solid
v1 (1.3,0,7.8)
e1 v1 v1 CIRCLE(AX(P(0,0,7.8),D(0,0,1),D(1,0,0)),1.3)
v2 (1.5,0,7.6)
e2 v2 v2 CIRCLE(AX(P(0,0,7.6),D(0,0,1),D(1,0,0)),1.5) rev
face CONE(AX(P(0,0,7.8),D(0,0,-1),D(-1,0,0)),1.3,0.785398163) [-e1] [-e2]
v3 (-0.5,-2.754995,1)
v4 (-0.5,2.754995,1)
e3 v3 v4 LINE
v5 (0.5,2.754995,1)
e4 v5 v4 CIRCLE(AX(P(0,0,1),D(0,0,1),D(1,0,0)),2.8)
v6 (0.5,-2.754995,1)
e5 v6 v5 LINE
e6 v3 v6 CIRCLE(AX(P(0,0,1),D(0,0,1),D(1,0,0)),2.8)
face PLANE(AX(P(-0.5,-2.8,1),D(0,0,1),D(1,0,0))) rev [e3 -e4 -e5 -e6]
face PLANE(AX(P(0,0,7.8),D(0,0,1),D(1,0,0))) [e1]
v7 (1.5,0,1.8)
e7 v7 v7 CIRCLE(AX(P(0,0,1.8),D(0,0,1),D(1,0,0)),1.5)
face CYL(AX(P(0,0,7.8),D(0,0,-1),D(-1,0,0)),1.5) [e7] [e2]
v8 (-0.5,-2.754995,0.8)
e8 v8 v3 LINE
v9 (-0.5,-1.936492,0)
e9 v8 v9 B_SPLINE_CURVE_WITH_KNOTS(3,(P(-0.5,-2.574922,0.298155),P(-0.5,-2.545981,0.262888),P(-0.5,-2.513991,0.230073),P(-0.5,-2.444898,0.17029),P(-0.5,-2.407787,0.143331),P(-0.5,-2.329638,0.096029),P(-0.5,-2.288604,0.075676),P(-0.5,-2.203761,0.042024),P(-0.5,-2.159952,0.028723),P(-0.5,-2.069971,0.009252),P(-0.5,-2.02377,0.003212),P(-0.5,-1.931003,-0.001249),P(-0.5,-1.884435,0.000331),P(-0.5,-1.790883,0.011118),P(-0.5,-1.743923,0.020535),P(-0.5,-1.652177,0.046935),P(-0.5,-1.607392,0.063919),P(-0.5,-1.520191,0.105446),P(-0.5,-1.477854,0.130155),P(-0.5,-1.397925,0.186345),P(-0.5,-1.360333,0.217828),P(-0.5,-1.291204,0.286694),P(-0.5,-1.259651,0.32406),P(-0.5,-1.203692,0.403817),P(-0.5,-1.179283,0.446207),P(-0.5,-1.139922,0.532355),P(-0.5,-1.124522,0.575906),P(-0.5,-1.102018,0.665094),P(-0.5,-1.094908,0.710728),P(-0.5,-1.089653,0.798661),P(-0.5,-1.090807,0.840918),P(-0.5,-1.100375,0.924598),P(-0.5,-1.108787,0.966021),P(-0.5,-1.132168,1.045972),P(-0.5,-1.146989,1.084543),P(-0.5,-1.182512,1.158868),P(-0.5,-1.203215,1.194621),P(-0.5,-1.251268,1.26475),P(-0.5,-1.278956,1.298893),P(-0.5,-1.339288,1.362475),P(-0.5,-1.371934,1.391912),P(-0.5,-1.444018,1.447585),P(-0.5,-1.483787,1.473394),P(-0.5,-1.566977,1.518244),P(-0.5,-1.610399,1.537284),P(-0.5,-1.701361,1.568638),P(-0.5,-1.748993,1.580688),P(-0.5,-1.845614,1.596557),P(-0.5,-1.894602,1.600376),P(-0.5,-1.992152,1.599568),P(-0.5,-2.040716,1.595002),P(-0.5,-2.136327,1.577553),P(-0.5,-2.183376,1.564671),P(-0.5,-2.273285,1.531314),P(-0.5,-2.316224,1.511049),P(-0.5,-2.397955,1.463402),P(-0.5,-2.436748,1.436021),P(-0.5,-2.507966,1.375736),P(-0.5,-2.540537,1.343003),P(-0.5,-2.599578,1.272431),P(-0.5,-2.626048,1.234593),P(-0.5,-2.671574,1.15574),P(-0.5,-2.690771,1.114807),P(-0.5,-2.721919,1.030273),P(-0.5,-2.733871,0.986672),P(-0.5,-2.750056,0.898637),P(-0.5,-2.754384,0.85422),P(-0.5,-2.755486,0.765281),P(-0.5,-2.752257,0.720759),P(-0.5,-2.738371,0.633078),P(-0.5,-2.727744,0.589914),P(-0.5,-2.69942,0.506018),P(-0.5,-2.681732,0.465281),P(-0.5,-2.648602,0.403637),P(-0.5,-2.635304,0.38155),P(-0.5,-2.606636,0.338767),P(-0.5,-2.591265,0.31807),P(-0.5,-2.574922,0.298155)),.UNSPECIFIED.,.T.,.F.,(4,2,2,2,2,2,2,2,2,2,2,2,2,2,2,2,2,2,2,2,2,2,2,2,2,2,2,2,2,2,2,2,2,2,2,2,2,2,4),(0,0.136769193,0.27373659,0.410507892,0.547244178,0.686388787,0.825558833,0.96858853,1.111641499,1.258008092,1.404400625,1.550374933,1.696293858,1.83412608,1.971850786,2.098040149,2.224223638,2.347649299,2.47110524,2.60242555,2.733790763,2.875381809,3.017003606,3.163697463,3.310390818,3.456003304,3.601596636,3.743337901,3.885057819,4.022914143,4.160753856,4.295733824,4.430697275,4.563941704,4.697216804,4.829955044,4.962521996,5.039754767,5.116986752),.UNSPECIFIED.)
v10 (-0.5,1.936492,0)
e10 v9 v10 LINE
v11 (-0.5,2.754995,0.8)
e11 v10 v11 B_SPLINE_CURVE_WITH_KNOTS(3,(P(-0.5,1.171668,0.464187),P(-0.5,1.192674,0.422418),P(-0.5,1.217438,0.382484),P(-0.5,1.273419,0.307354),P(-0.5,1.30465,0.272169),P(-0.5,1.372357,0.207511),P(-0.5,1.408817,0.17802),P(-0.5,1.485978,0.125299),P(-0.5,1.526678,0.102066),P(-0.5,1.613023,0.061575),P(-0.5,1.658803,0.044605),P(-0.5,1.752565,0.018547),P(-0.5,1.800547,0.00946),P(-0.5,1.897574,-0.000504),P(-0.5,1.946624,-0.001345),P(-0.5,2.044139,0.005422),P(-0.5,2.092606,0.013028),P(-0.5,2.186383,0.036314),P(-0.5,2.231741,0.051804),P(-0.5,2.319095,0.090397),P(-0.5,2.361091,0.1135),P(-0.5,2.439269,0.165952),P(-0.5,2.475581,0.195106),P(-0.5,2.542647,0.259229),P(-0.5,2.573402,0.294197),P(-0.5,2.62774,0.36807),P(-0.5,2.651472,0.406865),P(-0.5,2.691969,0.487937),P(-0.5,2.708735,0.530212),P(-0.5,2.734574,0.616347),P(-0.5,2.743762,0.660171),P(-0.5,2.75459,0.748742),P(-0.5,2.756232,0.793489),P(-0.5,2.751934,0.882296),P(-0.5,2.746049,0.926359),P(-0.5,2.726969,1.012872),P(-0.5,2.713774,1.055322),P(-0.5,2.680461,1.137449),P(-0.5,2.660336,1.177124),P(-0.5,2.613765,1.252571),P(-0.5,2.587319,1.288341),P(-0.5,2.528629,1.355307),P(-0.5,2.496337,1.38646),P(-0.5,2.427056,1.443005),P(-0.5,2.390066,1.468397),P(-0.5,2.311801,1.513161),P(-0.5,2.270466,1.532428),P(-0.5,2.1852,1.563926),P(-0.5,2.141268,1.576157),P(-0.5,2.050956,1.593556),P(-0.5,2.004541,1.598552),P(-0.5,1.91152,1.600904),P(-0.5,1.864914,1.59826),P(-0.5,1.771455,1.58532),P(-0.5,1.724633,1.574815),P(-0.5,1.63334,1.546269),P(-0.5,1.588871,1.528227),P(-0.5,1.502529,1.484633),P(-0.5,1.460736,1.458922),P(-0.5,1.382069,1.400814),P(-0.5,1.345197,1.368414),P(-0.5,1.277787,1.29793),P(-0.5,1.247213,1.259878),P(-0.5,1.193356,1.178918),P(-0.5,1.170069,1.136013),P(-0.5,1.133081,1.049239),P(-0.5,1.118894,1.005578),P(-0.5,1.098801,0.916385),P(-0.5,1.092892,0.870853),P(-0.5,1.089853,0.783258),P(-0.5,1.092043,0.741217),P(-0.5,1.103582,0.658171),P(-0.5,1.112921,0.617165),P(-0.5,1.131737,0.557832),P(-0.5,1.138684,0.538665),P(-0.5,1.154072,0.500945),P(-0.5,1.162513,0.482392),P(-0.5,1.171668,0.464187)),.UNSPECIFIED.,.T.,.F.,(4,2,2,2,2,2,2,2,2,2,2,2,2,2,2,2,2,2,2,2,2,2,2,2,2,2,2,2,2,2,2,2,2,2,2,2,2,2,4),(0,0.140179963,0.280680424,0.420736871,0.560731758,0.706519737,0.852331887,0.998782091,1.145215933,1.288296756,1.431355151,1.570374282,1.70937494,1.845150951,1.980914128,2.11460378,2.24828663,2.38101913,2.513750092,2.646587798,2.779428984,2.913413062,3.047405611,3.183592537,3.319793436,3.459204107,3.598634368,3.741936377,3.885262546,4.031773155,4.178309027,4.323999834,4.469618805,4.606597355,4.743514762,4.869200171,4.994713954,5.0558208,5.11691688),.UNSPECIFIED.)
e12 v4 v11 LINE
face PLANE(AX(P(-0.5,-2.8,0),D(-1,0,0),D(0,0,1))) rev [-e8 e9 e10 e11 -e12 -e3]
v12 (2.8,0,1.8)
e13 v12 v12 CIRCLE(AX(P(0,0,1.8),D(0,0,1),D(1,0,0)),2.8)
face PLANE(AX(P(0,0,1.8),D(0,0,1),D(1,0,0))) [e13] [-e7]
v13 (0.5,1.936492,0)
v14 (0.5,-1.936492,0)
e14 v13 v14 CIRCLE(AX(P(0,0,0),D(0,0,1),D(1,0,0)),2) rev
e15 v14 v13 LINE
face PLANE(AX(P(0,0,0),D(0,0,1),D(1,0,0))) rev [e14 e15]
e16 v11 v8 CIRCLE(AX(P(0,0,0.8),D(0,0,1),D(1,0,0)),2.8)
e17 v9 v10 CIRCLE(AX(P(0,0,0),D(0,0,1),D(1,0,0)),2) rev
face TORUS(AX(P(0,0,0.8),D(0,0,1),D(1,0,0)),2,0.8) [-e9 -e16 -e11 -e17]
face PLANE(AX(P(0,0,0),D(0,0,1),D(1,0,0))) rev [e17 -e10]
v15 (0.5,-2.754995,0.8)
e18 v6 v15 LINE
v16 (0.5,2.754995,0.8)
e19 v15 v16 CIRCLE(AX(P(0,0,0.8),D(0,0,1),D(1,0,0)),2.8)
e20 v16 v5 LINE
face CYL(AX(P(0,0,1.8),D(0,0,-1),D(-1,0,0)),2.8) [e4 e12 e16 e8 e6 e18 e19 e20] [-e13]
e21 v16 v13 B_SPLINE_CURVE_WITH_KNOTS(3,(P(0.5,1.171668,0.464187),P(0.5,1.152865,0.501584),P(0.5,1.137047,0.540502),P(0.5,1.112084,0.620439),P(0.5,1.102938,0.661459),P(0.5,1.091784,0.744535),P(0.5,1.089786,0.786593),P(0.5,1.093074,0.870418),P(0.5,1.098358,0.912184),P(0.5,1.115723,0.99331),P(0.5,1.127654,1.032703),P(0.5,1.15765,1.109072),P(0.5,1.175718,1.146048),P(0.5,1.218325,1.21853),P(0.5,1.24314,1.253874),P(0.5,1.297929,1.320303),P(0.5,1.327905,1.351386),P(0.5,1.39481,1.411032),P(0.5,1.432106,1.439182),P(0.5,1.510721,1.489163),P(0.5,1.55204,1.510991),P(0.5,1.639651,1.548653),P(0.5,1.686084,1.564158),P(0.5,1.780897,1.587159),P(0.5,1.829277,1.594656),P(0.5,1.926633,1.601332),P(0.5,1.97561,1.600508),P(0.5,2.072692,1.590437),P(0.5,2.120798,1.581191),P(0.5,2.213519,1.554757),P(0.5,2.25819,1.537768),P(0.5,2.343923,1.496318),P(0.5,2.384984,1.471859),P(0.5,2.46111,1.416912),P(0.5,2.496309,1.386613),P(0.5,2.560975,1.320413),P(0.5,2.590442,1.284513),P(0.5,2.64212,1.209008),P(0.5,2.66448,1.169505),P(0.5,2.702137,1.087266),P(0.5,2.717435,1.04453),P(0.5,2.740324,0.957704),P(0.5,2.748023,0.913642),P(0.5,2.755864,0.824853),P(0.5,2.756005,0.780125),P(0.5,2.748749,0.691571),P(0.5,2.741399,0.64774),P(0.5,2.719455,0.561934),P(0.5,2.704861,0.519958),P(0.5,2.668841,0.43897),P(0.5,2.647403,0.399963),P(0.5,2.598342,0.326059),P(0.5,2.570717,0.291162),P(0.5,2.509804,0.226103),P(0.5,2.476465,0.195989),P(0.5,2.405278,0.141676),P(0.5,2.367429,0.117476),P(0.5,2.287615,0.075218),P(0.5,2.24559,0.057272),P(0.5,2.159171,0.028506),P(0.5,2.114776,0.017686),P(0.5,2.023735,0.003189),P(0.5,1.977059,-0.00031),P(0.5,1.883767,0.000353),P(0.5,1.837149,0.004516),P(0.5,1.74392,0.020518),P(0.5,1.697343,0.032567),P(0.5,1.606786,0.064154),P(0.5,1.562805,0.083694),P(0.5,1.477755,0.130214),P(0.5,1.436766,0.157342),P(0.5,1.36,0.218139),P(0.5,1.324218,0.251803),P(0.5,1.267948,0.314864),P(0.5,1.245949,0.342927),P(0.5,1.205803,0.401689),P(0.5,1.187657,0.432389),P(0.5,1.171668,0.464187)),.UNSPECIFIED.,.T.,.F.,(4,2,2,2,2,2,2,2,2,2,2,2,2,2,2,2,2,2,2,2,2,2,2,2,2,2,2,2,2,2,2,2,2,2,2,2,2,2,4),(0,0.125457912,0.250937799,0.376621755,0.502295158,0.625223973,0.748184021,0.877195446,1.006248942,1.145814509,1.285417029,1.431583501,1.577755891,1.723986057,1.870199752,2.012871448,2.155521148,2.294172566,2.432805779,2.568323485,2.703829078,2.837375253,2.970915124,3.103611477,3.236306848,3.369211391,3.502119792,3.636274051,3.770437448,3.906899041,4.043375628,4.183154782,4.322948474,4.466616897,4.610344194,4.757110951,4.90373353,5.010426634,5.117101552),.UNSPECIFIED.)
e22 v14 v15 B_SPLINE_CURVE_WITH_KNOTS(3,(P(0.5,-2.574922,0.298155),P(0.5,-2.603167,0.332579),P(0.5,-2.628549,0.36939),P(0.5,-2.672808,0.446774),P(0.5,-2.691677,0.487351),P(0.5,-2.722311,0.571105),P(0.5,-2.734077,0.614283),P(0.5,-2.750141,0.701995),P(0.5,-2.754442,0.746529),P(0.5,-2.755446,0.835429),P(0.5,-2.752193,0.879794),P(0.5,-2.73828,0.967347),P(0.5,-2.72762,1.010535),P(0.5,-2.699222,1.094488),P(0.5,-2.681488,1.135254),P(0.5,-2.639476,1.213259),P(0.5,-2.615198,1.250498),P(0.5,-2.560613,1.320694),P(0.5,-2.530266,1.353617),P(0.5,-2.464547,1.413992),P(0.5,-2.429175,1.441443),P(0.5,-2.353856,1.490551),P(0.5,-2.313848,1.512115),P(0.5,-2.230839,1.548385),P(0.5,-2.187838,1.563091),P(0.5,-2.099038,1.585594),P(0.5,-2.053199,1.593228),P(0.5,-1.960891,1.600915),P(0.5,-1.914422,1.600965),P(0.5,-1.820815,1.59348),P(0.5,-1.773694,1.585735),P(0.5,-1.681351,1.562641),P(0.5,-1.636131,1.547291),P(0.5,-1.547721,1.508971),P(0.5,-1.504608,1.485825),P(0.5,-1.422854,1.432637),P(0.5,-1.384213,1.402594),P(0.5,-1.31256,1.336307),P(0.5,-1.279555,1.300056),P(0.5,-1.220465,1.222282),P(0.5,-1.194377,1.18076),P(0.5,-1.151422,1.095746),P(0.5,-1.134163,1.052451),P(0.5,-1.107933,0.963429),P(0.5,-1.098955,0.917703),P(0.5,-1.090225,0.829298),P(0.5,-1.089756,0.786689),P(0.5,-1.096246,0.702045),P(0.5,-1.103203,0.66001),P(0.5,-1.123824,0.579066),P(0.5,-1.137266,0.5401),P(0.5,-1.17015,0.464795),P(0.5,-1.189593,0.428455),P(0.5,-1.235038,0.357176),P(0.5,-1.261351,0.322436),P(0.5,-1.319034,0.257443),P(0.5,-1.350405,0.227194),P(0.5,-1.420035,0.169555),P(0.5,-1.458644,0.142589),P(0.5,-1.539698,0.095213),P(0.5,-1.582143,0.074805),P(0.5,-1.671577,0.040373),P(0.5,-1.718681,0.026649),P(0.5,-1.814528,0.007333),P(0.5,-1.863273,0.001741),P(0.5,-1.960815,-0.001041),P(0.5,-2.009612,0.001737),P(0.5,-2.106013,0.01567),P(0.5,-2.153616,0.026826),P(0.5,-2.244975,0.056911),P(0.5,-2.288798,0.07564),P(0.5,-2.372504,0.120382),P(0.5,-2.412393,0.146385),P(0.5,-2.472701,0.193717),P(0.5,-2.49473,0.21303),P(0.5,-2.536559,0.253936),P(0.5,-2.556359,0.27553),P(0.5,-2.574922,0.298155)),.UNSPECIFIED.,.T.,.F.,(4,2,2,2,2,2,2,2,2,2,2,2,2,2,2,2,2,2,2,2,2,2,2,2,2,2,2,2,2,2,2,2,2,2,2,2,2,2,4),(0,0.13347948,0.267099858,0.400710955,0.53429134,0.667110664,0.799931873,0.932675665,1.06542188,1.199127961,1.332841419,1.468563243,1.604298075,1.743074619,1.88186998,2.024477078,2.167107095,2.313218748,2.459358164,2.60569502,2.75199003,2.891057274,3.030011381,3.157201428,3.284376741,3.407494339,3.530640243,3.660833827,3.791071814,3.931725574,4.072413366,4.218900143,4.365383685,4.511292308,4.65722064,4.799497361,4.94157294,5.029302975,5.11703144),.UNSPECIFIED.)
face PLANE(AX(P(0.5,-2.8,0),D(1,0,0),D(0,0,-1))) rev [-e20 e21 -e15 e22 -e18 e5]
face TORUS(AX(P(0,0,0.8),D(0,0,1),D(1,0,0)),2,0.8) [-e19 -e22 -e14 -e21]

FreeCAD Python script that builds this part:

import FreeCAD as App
import Part
import Sketcher
from FreeCAD import Vector


def edges_at(feature, points):
    """Names of the edges that pass closest to the given points."""
    edges = feature.Shape.Edges
    near = lambda p: min(range(len(edges)), key=lambda i: edges[i].distToShape(Part.Vertex(*p))[0])
    return sorted({f"Edge{near(p) + 1}" for p in points})

doc = App.newDocument("Part")
body = doc.addObject("PartDesign::Body", "Body")

sketch1 = body.newObject("Sketcher::SketchObject", "Sketch")
sketch1.AttachmentSupport = (doc.getObject("XY_Plane"), [""])
sketch1.MapMode = "FlatFace"
sketch1.addGeometry(Part.Circle(Vector(0, 0, 0), Vector(0, 0, 1), 2.8), False)
sketch1.addConstraint([
    Sketcher.Constraint("Coincident", 0, 3, -1, 1),
    Sketcher.Constraint("Diameter", 0, 5.6),
])
pad1 = body.newObject("PartDesign::Pad", "Pad")
pad1.Profile = sketch1
pad1.Length = 1.8
doc.recompute()

fillet = body.newObject("PartDesign::Fillet", "Fillet")
fillet.Base = (pad1, edges_at(pad1, [(-2.8, 0, 0)]))
fillet.Radius = 0.8

sketch2 = body.newObject("Sketcher::SketchObject", "Sketch001")
sketch2.AttachmentSupport = (doc.getObject("XY_Plane"), [""])
sketch2.MapMode = "FlatFace"
sketch2.AttachmentOffset = App.Placement(Vector(0, 0, 1.8), App.Rotation())
sketch2.addGeometry(Part.Circle(Vector(0, 0, 0), Vector(0, 0, 1), 1.5), False)
sketch2.addConstraint([
    Sketcher.Constraint("Coincident", 0, 3, -1, 1),
    Sketcher.Constraint("Diameter", 0, 3.0),
])
pad2 = body.newObject("PartDesign::Pad", "Pad001")
pad2.Profile = sketch2
pad2.Length = 6
doc.recompute()

chamfer = body.newObject("PartDesign::Chamfer", "Chamfer")
chamfer.Base = (pad2, edges_at(pad2, [(-1.5, 0, 7.8)]))
chamfer.Size = 0.2

sketch3 = body.newObject("Sketcher::SketchObject", "Sketch002")
sketch3.AttachmentSupport = (doc.getObject("XZ_Plane"), [""])
sketch3.MapMode = "FlatFace"
sketch3.addGeometry([
    Part.LineSegment(Vector(-0.5, 0, 0), Vector(-0.5, 1, 0)),
    Part.LineSegment(Vector(-0.5, 1, 0), Vector(0.5, 1, 0)),
    Part.LineSegment(Vector(0.5, 1, 0), Vector(0.5, 0, 0)),
    Part.LineSegment(Vector(0.5, 0, 0), Vector(-0.5, 0, 0)),
], False)
sketch3.addConstraint([
    Sketcher.Constraint("Coincident", 0, 2, 1, 1),
    Sketcher.Constraint("Coincident", 1, 2, 2, 1),
    Sketcher.Constraint("Coincident", 2, 2, 3, 1),
    Sketcher.Constraint("Coincident", 3, 2, 0, 1),
    Sketcher.Constraint("Vertical", 0),
    Sketcher.Constraint("Horizontal", 1),
    Sketcher.Constraint("Vertical", 2),
    Sketcher.Constraint("Horizontal", 3),
    Sketcher.Constraint("Symmetric", 2, 2, 3, 2, -1, 1),
    Sketcher.Constraint("Equal", 3, 0),
    Sketcher.Constraint("DistanceX", 1, 1, 1, 2, 1.0),
])
pocket1 = body.newObject("PartDesign::Pocket", "Pocket")
pocket1.Profile = sketch3
pocket1.Type = "ThroughAll"
pocket1.Midplane = True

doc.recompute()
